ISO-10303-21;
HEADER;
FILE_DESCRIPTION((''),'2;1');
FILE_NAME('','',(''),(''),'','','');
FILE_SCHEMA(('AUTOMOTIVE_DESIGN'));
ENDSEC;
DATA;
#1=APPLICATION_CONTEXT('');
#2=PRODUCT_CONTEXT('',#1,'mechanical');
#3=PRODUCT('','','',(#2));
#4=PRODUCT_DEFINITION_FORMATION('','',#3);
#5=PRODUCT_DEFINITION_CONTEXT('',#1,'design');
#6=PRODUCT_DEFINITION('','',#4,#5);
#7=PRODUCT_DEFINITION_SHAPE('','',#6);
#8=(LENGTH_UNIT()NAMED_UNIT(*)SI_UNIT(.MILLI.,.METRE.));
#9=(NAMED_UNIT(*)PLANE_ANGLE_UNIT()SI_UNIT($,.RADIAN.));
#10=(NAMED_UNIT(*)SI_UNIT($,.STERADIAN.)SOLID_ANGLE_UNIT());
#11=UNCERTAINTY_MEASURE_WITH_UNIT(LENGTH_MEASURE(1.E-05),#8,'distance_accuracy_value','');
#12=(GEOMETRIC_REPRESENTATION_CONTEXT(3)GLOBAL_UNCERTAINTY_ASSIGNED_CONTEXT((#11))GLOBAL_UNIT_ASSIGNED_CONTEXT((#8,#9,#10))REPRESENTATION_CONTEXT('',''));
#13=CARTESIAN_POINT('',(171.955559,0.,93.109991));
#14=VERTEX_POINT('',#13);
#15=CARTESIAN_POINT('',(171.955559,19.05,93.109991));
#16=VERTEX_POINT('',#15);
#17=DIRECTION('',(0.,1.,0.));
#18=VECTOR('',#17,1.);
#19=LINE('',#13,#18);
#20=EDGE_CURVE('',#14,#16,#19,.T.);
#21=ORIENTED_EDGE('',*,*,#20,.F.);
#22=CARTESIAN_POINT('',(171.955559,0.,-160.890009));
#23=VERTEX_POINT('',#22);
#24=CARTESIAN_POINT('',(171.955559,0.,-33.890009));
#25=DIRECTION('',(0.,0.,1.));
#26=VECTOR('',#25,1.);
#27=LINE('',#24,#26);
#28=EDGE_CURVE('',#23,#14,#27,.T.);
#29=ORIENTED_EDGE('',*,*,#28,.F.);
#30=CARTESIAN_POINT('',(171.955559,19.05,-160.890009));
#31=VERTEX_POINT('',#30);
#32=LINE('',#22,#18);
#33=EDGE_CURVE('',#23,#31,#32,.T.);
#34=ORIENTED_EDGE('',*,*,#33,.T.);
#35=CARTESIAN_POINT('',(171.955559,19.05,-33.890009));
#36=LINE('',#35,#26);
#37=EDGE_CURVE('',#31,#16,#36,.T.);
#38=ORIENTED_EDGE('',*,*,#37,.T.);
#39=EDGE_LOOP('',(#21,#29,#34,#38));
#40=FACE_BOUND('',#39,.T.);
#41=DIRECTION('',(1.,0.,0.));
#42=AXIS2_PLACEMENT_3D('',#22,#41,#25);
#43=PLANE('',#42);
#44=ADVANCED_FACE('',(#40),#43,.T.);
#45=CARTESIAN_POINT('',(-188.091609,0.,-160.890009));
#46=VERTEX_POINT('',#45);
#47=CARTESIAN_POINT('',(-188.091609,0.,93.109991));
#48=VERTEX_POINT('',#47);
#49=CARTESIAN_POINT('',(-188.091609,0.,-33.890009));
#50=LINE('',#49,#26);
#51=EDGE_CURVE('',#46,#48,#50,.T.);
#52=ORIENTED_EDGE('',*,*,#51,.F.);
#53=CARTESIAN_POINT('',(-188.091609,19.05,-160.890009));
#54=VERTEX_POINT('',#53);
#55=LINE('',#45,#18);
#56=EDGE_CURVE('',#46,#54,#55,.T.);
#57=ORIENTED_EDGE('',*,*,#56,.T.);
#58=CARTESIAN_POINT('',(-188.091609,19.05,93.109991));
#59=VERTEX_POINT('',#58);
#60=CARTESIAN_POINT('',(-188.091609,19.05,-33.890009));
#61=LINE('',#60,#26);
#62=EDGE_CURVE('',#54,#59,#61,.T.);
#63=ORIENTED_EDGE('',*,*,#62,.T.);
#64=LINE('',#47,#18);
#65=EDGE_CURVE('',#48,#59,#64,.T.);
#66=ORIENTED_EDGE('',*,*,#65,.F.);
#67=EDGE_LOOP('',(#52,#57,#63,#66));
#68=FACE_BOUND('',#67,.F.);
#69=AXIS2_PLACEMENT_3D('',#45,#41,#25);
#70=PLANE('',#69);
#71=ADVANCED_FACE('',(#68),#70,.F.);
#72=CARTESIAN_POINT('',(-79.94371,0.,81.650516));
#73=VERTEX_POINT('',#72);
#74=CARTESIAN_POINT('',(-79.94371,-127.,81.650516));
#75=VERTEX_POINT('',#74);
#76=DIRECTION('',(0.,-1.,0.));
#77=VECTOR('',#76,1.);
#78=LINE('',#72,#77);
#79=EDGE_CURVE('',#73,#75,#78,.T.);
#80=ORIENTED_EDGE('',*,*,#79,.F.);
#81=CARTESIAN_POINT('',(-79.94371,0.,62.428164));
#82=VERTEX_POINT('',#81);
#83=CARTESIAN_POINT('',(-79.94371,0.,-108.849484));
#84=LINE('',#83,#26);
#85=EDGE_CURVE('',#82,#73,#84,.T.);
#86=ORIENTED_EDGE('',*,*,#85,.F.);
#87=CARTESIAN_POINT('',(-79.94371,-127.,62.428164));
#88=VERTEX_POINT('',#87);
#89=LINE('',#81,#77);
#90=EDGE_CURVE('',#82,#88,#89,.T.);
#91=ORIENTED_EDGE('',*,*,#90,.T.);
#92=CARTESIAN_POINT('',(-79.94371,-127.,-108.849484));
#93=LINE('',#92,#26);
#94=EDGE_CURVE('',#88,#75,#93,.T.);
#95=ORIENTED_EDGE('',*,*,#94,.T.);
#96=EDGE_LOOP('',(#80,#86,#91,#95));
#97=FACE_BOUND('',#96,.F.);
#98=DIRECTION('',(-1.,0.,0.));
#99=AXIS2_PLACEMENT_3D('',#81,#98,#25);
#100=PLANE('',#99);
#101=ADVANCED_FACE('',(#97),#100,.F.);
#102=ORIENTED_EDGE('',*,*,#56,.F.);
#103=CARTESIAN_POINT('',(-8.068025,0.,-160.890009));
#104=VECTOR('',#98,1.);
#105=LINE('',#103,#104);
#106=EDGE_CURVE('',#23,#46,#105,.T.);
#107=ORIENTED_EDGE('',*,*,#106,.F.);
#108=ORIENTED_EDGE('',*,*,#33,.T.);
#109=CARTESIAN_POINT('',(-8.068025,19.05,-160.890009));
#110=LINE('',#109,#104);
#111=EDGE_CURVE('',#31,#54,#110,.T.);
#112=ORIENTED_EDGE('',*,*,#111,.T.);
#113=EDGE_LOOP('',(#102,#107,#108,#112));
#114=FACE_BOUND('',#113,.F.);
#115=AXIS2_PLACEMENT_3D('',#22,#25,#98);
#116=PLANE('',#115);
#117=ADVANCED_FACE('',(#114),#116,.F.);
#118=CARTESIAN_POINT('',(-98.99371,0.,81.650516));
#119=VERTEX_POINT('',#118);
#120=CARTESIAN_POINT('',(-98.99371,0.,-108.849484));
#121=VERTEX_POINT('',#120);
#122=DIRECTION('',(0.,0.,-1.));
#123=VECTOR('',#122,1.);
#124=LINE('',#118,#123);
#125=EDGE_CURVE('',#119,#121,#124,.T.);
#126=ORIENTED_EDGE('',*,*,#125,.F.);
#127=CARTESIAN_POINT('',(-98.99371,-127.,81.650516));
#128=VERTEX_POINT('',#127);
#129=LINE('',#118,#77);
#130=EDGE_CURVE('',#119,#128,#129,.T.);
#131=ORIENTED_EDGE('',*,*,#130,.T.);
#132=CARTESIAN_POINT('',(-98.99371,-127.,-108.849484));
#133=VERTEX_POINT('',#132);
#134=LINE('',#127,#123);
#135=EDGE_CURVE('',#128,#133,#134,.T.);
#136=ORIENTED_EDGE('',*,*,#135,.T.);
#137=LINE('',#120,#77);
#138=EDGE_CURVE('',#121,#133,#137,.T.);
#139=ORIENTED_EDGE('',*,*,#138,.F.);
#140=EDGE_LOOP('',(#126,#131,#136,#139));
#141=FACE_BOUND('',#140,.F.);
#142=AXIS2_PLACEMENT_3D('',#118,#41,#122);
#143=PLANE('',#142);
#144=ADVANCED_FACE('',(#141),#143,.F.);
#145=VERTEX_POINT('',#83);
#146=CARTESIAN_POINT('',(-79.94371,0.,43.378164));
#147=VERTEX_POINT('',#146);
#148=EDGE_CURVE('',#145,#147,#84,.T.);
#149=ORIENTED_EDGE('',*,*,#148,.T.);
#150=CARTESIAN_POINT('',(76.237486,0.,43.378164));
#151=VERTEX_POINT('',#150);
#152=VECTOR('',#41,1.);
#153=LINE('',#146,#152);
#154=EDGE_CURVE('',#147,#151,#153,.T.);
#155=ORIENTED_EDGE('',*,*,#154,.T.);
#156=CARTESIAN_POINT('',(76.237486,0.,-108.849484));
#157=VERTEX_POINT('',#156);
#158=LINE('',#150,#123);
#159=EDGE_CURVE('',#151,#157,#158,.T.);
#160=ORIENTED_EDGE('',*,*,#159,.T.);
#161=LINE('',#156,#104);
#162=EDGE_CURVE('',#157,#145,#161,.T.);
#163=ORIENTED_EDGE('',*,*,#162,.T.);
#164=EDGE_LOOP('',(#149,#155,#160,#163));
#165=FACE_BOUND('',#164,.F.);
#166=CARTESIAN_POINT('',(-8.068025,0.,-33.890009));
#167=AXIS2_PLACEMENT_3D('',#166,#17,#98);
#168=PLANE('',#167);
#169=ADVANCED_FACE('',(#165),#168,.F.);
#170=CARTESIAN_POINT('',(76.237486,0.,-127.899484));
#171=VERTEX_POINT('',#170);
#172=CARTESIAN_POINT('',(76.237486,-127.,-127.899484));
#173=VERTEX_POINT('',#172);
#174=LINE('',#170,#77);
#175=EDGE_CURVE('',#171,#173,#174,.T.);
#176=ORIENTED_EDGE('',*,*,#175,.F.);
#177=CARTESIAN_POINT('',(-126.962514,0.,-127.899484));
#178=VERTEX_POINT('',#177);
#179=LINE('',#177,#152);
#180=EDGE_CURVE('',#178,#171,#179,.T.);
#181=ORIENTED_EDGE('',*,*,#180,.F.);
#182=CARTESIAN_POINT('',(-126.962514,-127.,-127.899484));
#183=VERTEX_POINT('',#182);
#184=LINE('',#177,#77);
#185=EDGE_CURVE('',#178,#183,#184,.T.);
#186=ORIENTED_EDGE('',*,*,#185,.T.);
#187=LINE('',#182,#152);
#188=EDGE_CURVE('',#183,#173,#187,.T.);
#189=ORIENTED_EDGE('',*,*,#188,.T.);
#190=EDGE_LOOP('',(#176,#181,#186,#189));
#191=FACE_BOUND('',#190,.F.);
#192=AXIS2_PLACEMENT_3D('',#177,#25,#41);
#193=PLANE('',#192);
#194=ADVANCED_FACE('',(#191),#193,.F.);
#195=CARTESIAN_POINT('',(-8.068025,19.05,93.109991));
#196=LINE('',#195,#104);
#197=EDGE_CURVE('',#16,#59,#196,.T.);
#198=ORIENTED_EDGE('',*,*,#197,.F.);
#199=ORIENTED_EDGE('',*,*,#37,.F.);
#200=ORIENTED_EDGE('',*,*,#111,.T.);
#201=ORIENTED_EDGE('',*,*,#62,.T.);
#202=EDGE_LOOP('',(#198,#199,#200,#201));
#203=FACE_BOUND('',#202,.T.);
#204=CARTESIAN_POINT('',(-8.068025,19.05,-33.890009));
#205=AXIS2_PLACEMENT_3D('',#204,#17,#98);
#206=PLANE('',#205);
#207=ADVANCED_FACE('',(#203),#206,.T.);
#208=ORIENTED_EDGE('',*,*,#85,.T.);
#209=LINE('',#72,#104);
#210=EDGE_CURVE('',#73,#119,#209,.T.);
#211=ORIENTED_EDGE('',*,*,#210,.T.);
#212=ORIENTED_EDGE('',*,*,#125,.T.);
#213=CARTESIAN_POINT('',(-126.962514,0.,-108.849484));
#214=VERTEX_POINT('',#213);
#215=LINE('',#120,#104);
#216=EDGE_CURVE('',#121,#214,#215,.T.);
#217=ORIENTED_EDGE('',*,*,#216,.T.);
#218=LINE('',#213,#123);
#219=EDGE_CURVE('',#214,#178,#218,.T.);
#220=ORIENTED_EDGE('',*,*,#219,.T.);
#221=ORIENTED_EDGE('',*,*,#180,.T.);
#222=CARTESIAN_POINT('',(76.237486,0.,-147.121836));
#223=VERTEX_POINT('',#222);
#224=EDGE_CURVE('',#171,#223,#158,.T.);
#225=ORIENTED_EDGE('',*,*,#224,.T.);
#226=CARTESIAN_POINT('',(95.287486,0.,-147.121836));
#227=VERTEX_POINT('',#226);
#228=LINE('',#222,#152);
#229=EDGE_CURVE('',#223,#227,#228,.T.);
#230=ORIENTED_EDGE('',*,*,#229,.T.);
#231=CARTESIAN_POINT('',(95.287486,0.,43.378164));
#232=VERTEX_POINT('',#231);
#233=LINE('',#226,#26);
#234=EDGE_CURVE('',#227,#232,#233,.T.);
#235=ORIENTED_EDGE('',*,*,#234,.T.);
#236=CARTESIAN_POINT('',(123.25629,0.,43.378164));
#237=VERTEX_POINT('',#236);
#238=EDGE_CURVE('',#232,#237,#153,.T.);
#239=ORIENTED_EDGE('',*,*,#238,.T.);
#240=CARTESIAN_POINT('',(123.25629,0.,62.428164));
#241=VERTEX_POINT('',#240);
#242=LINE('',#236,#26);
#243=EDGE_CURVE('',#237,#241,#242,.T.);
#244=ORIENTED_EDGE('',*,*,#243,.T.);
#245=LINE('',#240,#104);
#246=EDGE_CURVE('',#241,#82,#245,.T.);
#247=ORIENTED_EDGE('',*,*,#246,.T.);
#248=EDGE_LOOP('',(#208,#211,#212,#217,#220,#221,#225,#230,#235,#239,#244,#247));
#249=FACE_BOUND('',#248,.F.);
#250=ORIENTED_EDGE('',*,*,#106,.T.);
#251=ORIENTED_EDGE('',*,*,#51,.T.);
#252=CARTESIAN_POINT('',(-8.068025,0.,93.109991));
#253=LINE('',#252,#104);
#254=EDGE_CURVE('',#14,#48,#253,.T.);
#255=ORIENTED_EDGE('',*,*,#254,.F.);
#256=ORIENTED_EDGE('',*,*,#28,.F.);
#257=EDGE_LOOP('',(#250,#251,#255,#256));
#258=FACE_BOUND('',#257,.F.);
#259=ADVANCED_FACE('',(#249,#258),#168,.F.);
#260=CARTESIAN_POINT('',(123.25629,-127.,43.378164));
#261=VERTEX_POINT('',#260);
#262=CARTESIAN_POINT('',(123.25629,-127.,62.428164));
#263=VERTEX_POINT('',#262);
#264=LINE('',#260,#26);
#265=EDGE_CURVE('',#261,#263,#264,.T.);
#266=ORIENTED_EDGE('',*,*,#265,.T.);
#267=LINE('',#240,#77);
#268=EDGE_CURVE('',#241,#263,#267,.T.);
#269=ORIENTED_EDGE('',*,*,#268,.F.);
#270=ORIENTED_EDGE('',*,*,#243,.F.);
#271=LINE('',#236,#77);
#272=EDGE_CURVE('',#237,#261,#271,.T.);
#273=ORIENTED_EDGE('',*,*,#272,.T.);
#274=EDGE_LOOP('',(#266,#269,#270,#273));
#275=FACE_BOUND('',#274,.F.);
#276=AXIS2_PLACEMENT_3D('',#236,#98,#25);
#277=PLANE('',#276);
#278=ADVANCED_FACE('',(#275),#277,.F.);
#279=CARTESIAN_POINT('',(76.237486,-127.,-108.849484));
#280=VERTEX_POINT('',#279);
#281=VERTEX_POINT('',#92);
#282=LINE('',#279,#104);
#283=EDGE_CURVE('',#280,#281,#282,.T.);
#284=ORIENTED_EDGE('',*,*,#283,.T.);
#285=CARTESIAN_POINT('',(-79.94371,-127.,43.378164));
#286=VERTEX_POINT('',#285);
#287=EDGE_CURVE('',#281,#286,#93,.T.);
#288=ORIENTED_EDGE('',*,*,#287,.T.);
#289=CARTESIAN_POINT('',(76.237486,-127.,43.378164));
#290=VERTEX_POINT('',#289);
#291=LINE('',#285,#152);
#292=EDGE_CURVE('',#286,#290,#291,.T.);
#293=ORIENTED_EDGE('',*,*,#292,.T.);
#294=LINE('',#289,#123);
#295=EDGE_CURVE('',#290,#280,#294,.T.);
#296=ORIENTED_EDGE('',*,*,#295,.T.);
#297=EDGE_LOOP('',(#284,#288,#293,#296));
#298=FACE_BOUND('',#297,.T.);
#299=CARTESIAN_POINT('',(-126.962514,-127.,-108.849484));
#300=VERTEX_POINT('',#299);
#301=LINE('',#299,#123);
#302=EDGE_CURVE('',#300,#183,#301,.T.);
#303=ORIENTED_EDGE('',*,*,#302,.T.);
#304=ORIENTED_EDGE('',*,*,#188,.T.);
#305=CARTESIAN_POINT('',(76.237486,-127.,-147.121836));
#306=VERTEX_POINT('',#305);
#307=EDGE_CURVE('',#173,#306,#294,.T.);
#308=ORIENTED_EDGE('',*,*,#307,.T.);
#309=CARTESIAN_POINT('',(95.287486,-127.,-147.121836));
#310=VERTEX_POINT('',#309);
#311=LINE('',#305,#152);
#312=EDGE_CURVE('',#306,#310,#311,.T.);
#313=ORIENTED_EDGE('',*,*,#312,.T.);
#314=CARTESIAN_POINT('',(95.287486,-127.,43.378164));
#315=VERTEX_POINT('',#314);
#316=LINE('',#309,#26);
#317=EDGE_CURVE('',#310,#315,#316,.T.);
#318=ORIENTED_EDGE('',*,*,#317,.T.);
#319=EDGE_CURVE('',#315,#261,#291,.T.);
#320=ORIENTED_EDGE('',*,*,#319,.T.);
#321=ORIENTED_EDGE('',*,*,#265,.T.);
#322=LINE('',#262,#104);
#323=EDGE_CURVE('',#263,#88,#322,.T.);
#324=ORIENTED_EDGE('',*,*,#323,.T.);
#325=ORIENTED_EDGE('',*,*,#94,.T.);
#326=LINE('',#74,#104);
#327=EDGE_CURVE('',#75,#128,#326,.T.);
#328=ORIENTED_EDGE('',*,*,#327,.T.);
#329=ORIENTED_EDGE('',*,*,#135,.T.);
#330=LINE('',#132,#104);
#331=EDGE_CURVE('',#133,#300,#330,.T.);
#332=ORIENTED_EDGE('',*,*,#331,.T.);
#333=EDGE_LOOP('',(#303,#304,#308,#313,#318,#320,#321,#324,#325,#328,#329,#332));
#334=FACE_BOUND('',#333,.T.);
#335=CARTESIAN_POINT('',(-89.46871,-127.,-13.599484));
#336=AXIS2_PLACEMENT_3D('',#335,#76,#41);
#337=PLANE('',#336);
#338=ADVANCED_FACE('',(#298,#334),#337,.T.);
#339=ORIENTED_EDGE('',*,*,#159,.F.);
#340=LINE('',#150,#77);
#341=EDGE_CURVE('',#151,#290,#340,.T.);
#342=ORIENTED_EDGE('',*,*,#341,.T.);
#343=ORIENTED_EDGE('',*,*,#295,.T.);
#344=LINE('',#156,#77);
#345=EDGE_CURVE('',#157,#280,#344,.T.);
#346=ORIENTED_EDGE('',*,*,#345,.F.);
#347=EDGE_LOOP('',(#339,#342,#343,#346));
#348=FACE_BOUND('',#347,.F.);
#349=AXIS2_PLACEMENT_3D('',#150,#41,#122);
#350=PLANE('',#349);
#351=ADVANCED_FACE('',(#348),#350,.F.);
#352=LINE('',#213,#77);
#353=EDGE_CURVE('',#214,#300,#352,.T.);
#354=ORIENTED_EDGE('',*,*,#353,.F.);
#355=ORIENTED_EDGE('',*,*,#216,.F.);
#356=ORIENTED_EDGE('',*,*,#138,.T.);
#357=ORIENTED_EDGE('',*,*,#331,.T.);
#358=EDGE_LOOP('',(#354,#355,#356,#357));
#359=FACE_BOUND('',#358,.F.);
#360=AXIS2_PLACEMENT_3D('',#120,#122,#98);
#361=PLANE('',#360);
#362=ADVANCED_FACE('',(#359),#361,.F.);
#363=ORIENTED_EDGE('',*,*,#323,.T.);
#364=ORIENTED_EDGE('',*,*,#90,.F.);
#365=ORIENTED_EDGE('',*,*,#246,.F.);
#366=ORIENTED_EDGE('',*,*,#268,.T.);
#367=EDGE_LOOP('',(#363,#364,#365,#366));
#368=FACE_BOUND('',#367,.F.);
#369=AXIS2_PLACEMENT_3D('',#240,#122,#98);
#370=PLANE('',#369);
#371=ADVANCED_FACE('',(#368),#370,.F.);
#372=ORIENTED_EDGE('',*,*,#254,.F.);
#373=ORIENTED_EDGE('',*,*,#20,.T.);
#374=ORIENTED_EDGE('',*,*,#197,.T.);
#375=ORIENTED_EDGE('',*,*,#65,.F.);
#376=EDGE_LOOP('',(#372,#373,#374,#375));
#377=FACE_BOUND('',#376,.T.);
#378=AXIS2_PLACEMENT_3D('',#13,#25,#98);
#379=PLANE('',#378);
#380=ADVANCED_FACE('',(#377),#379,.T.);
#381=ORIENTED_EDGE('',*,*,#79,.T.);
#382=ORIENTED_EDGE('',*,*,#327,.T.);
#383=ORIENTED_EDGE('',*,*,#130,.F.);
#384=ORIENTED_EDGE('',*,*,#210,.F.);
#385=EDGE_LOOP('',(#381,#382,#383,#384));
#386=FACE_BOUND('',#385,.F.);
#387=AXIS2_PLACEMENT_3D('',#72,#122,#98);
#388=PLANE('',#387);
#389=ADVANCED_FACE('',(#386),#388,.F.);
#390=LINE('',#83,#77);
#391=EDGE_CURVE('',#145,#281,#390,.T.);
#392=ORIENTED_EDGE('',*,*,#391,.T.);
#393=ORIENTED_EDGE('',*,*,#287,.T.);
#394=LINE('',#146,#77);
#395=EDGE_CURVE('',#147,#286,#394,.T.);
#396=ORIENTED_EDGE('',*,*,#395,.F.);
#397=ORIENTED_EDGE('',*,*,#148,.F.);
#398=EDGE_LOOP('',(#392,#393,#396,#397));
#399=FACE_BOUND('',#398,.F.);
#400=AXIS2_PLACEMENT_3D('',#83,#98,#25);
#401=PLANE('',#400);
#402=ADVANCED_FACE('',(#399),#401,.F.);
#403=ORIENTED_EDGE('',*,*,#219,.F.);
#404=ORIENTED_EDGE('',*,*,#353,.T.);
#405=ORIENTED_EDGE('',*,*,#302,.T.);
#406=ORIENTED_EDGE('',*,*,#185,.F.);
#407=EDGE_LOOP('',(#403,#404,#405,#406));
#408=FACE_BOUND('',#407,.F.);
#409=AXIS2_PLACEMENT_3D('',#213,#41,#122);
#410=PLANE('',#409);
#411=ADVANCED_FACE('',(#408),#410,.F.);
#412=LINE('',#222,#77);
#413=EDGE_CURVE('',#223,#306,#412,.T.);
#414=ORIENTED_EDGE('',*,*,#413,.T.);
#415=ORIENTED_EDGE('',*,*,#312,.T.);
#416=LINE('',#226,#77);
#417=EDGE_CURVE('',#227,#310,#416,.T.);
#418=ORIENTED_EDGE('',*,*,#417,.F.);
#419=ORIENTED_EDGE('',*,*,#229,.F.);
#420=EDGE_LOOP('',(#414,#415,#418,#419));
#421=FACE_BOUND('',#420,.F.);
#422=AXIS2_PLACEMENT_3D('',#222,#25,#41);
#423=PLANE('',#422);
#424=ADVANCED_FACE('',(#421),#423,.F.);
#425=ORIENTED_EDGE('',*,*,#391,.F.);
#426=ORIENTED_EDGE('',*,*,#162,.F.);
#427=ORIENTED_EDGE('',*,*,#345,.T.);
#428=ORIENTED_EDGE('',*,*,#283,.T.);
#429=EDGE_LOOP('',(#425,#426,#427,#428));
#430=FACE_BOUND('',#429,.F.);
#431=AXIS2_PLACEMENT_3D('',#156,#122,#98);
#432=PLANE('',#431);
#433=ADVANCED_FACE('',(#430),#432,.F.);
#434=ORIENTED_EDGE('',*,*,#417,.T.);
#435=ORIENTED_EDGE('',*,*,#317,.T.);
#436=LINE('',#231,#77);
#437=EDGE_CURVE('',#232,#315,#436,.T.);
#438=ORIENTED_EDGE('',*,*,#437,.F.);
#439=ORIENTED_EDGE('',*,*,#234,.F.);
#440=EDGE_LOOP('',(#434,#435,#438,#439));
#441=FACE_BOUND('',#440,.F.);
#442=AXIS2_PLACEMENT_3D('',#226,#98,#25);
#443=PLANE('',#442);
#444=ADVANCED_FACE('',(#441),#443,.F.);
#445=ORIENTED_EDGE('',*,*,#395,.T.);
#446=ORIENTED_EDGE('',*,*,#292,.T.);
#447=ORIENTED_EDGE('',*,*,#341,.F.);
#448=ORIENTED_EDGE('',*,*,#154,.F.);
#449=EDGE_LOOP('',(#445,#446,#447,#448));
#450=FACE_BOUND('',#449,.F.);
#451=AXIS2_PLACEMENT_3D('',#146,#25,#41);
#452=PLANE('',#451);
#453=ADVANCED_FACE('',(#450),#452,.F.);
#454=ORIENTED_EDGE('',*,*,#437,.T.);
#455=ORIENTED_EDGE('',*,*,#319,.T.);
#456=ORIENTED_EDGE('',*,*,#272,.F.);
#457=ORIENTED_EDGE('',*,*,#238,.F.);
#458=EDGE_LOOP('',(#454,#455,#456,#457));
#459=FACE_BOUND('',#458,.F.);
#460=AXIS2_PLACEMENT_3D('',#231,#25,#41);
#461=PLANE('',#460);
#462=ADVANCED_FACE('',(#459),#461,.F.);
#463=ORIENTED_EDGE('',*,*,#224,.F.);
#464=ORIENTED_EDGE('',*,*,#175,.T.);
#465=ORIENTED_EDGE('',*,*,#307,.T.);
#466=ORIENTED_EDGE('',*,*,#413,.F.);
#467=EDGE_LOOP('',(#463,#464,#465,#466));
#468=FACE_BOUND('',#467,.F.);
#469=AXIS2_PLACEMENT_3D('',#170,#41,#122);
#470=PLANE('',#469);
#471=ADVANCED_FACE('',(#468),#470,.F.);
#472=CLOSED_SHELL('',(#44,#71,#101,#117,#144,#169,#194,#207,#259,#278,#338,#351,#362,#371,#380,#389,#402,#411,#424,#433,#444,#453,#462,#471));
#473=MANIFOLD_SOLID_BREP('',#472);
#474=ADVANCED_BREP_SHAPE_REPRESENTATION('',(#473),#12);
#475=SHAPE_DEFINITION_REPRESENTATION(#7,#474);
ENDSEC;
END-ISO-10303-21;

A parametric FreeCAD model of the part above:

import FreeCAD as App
import Part
import Sketcher
Q = App.Units.Quantity


def add_polygon(sketch, points):
    """Adds a closed chain of lines whose ends are joined by coincident constraints."""
    first, n = sketch.GeometryCount, len(points)
    for a, b in zip(points, points[1:] + points[:1]):
        sketch.addGeometry(Part.LineSegment(App.Vector(*a, 0), App.Vector(*b, 0)), False)
    for i in range(n):
        sketch.addConstraint(Sketcher.Constraint("Coincident", first + i, 2, first + (i + 1) % n, 1))

doc = App.newDocument("Part")
body = doc.addObject("PartDesign::Body", "Body")

# Sketch on XZ plane
sketch1 = doc.addObject("Sketcher::SketchObject", "Sketch")
body.addObject(sketch1)
sketch1.AttachmentSupport = (doc.XZ_Plane, [""])
sketch1.MapMode = "FlatFace"
add_polygon(sketch1, [(-79.94371, 81.650516), (-98.99371, 81.650516), (-98.99371, -108.849484), (-126.962514, -108.849484), (-126.962514, -127.899484), (76.237486, -127.899484), (76.237486, -147.121836), (95.287486, -147.121836), (95.287486, 43.378164), (123.25629, 43.378164), (123.25629, 62.428164), (-79.94371, 62.428164)])  # lines 0-11
add_polygon(sketch1, [(-79.94371, -108.849484), (-79.94371, 43.378164), (76.237486, 43.378164), (76.237486, -108.849484)])  # lines 12-15
sketch1.addConstraint([
    Sketcher.Constraint("Horizontal", 0),
    Sketcher.Constraint("Vertical", 1),
    Sketcher.Constraint("Horizontal", 2),
    Sketcher.Constraint("Vertical", 3),
    Sketcher.Constraint("Horizontal", 4),
    Sketcher.Constraint("Vertical", 5),
    Sketcher.Constraint("Horizontal", 6),
    Sketcher.Constraint("Vertical", 7),
    Sketcher.Constraint("Horizontal", 8),
    Sketcher.Constraint("Vertical", 9),
    Sketcher.Constraint("Horizontal", 10),
    Sketcher.Constraint("Vertical", 11),
    Sketcher.Constraint("Vertical", 12),
    Sketcher.Constraint("Horizontal", 13),
    Sketcher.Constraint("Vertical", 14),
    Sketcher.Constraint("Horizontal", 15),
    Sketcher.Constraint("Horizontal", 8, 2, 12, 2),
    Sketcher.Constraint("Horizontal", 2, 2, 14, 2),
    Sketcher.Constraint("Vertical", 11, 2, 12, 2),
    Sketcher.Constraint("Vertical", 5, 2, 13, 2),
    Sketcher.Constraint("Equal", 0, 6),
    Sketcher.Constraint("Equal", 2, 8),
    Sketcher.Constraint("Equal", 6, 3),
    Sketcher.Constraint("Equal", 1, 7),
    Sketcher.Constraint("Equal", 3, 9),
    Sketcher.Constraint("DistanceX", 4, 1, 4, 2, Q("8 in")),
    Sketcher.Constraint("DistanceY", 1, 2, 1, 1, Q("7.5 in")),
    Sketcher.Constraint("DistanceX", 0, 2, 0, 1, Q("0.75 in")),
    Sketcher.Constraint("DistanceY", 11, 1, 11, 2, Q("19.222352 mm")),
    Sketcher.Constraint("DistanceX", 2, 2, 2, 1, Q("27.968804 mm")),
    Sketcher.Constraint("DistanceX", 0, 2, -1, 1, Q("98.99371 mm")),
    Sketcher.Constraint("DistanceY", -1, 1, 0, 2, Q("81.650516 mm")),
])
pad1 = doc.addObject("PartDesign::Pad", "Pad")
body.addObject(pad1)
pad1.Profile = sketch1
pad1.Length = Q("5 in")

# Sketch on XZ plane
sketch2 = doc.addObject("Sketcher::SketchObject", "Sketch001")
body.addObject(sketch2)
sketch2.AttachmentSupport = (doc.XZ_Plane, [""])
sketch2.MapMode = "FlatFace"
add_polygon(sketch2, [(171.955559, 93.109991), (171.955559, -160.890009), (-188.091609, -160.890009), (-188.091609, 93.109991)])  # lines 0-3
sketch2.addConstraint([
    Sketcher.Constraint("Vertical", 0),
    Sketcher.Constraint("Horizontal", 1),
    Sketcher.Constraint("Vertical", 2),
    Sketcher.Constraint("Horizontal", 3),
    Sketcher.Constraint("DistanceY", 0, 2, 0, 1, Q("10 in")),
    Sketcher.Constraint("DistanceX", 1, 2, 1, 1, Q("360.047168 mm")),
    Sketcher.Constraint("DistanceX", -1, 1, 0, 2, Q("171.955559 mm")),
    Sketcher.Constraint("DistanceY", 0, 2, -1, 1, Q("160.890009 mm")),
])
pad2 = doc.addObject("PartDesign::Pad", "Pad001")
body.addObject(pad2)
pad2.Profile = sketch2
pad2.Length = Q("0.75 in")
pad2.Reversed = True

doc.recompute()
